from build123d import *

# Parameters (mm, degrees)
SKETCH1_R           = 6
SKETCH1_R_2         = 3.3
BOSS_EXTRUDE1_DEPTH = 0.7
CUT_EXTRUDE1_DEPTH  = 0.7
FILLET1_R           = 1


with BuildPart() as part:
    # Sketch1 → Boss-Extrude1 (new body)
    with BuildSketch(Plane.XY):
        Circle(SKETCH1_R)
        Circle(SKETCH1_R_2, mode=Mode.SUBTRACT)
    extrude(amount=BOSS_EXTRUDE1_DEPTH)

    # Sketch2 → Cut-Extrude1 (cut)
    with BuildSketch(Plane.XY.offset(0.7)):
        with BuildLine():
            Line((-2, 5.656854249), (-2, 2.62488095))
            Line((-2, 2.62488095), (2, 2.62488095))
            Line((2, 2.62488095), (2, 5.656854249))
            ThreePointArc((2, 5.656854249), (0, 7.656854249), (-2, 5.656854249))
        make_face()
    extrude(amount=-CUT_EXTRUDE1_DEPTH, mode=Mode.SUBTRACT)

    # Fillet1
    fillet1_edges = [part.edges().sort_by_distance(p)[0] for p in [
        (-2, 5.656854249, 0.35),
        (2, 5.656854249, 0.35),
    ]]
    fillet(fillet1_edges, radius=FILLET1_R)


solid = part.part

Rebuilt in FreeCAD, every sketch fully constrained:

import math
import FreeCAD as App
import Part
import Sketcher


def edges_at(feature, points):
    """Names of the edges that pass closest to the given points."""
    edges = feature.Shape.Edges
    near = lambda p: min(range(len(edges)), key=lambda i: edges[i].distToShape(Part.Vertex(*p))[0])
    return sorted({f"Edge{near(p) + 1}" for p in points})

doc = App.newDocument("Part")
params = doc.addObject("Spreadsheet::Sheet", "Params")
for row, (alias, value) in enumerate([
    ("sketch1_diameter", "12 mm"),
    ("sketch1_diameter2", "6.6 mm"),
    ("pad1_length", "0.7 mm"),
    ("sketch2_radius", "2 mm"),
    ("pocket1_length", "0.7 mm"),
    ("fillet_radius", "1 mm"),
], start=1):
    params.set(f"A{row}", alias)
    params.set(f"B{row}", "=" + value)
    params.setAlias(f"B{row}", alias)

body = doc.addObject("PartDesign::Body", "Body")

# Sketch on XY plane
sketch1 = body.newObject("Sketcher::SketchObject", "Sketch")
sketch1.AttachmentSupport = (doc.getObject("XY_Plane"), [""])
sketch1.MapMode = "FlatFace"
sketch1.addGeometry([
    Part.Circle(App.Vector(0, 0, 0), App.Vector(0, 0, 1), 6),
    Part.Circle(App.Vector(0, 0, 0), App.Vector(0, 0, 1), 3.3),
], False)
sketch1.addConstraint([
    Sketcher.Constraint("Coincident", 0, 3, -1, 1),
    Sketcher.Constraint("Coincident", 1, 3, -1, 1),
    Sketcher.Constraint("Diameter", 0, 12.0),
    Sketcher.Constraint("Diameter", 1, 6.6),
])
sketch1.setExpression("Constraints[2]", "Params.sketch1_diameter")
sketch1.setExpression("Constraints[3]", "Params.sketch1_diameter2")
pad1 = body.newObject("PartDesign::Pad", "Pad")
pad1.Profile = sketch1
pad1.setExpression("Length", "Params.pad1_length")

# Sketch on XY plane
sketch2 = body.newObject("Sketcher::SketchObject", "Sketch001")
sketch2.AttachmentSupport = (doc.getObject("XY_Plane"), [""])
sketch2.MapMode = "FlatFace"
sketch2.AttachmentOffset = App.Placement(App.Vector(0, 0, 0.7), App.Rotation())
sketch2.addGeometry([
    Part.LineSegment(App.Vector(-2, 5.7, 0), App.Vector(-2, 2.6, 0)),
    Part.LineSegment(App.Vector(-2, 2.6, 0), App.Vector(2, 2.6, 0)),
    Part.LineSegment(App.Vector(2, 2.6, 0), App.Vector(2, 5.7, 0)),
    Part.ArcOfCircle(Part.Circle(App.Vector(0, 5.7, 0), App.Vector(0, 0, 1), 2), math.radians(0), math.radians(180)),
], False)
sketch2.addConstraint([
    Sketcher.Constraint("Coincident", 0, 2, 1, 1),
    Sketcher.Constraint("Coincident", 1, 2, 2, 1),
    Sketcher.Constraint("Tangent", 2, 2, 3, 1),
    Sketcher.Constraint("Tangent", 3, 2, 0, 1),
    Sketcher.Constraint("Vertical", 0),
    Sketcher.Constraint("Horizontal", 1),
    Sketcher.Constraint("Vertical", 2),
    Sketcher.Constraint("PointOnObject", 3, 3, -2),
    Sketcher.Constraint("Radius", 3, 2.0),
    Sketcher.Constraint("DistanceY", 0, 2, 0, 1, 3.031973),
    Sketcher.Constraint("DistanceY", -1, 1, 0, 2, 2.624881),
])
sketch2.setExpression("Constraints[8]", "Params.sketch2_radius")
pocket1 = body.newObject("PartDesign::Pocket", "Pocket")
pocket1.Profile = sketch2
pocket1.setExpression("Length", "Params.pocket1_length")
doc.recompute()

fillet = body.newObject("PartDesign::Fillet", "Fillet")
fillet.Base = (pocket1, edges_at(pocket1, [(-2, 5.657, 0.35), (2, 5.657, 0.35)]))
fillet.setExpression("Radius", "Params.fillet_radius")

doc.recompute()
